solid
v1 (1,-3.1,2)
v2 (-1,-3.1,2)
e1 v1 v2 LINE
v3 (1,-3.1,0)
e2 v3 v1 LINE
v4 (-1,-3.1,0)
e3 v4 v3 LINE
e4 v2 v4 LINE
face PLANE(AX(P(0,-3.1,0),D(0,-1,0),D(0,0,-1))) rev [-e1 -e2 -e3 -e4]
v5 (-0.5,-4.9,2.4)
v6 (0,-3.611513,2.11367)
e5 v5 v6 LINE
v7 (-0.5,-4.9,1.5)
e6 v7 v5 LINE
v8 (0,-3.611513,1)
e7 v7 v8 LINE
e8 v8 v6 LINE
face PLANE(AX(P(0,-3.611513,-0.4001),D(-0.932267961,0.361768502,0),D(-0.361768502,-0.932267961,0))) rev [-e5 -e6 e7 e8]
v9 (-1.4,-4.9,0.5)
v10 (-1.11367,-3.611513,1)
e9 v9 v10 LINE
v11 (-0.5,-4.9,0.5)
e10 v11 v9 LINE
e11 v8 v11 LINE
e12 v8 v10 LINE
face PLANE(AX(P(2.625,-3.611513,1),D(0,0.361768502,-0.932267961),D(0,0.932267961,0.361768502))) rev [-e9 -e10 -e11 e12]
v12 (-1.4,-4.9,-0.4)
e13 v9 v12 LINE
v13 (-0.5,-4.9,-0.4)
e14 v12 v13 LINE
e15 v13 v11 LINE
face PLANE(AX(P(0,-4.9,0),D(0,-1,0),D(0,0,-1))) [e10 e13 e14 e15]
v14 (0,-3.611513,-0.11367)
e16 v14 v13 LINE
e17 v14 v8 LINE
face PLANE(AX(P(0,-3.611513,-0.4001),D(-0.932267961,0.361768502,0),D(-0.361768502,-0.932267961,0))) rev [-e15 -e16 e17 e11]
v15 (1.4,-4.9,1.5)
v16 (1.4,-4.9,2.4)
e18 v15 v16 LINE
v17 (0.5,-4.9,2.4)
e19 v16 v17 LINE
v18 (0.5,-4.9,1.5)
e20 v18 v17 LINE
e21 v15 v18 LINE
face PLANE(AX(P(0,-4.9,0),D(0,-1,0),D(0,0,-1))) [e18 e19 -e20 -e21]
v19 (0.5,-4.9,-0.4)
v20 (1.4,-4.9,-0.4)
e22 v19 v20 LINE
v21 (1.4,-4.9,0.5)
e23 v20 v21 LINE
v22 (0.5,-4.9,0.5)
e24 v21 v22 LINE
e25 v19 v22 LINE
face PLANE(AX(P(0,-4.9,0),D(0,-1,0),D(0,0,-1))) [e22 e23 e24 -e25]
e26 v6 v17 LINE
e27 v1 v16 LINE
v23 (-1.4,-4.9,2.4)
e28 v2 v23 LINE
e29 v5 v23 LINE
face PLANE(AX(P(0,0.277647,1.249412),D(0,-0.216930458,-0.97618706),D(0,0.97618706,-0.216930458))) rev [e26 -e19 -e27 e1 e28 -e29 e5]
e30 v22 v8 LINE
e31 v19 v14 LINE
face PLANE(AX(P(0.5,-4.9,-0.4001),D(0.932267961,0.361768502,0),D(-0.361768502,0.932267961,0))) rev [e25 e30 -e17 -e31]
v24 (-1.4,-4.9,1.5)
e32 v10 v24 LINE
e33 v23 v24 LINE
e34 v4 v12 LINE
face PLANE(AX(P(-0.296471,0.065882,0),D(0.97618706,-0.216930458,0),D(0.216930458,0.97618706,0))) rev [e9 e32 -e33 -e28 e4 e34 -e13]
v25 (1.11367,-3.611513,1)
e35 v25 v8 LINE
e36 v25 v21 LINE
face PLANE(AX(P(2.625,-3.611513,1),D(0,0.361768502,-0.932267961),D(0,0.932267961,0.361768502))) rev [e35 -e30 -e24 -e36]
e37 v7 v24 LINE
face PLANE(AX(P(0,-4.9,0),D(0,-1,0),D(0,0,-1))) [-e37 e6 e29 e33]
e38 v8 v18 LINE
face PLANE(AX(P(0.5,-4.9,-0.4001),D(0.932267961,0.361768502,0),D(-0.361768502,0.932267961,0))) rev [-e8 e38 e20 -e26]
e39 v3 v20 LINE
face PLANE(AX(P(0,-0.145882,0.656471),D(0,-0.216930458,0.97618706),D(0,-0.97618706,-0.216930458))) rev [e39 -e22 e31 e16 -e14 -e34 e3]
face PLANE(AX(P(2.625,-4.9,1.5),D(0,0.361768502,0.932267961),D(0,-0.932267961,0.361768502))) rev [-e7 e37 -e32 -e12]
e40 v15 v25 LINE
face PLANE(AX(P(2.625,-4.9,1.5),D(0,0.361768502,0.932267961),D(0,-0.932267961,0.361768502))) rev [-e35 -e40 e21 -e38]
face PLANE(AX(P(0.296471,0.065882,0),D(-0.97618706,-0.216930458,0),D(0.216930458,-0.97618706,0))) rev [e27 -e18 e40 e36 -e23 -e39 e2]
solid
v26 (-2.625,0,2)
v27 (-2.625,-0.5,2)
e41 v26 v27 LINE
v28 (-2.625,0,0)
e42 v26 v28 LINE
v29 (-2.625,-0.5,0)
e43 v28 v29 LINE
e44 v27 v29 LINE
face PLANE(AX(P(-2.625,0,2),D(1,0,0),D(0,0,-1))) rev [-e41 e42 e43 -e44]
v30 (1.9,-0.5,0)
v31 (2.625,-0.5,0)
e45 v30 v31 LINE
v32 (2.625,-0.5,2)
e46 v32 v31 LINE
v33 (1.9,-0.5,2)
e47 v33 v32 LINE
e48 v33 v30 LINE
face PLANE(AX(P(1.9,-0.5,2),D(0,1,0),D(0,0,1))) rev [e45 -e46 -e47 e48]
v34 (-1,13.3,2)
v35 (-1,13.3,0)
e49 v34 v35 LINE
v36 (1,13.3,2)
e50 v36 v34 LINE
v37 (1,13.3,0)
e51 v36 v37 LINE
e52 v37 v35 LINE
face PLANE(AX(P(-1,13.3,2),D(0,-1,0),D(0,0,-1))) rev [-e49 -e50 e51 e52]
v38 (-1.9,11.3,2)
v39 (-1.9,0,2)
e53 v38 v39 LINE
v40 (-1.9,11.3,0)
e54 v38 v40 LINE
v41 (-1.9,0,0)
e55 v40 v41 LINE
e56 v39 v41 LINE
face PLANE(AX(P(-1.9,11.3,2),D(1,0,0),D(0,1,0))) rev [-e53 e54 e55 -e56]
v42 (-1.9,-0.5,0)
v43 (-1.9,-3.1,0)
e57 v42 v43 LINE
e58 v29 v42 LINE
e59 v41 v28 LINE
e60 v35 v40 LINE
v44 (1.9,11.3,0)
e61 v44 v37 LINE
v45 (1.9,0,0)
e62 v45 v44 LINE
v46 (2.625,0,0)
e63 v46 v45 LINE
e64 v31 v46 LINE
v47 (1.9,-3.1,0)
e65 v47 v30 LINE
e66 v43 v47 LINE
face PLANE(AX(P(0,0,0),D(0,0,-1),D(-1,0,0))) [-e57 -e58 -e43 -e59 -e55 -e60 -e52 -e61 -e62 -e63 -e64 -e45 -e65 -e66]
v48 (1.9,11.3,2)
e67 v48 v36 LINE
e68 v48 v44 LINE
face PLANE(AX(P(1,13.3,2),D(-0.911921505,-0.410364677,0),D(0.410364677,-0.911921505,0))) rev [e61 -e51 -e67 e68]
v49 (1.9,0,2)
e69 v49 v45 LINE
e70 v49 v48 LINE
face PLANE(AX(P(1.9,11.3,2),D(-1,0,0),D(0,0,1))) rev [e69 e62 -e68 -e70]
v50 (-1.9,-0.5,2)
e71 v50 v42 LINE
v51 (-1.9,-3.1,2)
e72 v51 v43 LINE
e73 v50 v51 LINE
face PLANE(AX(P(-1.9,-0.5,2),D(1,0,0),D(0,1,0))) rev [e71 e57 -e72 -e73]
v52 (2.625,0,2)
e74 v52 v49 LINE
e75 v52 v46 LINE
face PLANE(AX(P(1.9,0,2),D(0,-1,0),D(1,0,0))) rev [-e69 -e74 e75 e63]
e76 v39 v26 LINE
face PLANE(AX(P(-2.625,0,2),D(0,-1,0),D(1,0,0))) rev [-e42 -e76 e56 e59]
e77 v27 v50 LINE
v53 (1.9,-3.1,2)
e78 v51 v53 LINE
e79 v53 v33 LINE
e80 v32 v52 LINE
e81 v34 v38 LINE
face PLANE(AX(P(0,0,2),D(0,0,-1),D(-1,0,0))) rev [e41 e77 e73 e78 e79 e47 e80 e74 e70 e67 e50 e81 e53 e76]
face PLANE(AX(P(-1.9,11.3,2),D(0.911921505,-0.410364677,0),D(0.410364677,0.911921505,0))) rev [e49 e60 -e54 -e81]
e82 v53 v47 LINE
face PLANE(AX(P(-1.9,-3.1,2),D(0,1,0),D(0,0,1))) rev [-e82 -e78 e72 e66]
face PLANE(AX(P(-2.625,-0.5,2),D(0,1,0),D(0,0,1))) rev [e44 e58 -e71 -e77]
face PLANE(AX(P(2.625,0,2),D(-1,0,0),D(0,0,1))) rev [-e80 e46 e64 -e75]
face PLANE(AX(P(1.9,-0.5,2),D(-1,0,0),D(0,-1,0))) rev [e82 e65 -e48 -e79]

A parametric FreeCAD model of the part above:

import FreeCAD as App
import Part
import Sketcher

V = App.Vector
Q = App.Units.Quantity


def add_polygon(sketch, points):
    """Adds a closed chain of lines whose ends are joined by coincident constraints."""
    first, n = sketch.GeometryCount, len(points)
    for a, b in zip(points, points[1:] + points[:1]):
        sketch.addGeometry(Part.LineSegment(App.Vector(*a, 0), App.Vector(*b, 0)), False)
    for i in range(n):
        sketch.addConstraint(Sketcher.Constraint("Coincident", first + i, 2, first + (i + 1) % n, 1))

doc = App.newDocument("Part")
body = doc.addObject("PartDesign::Body", "Body")

# Sketch on XY plane
sketch1 = body.newObject("Sketcher::SketchObject", "Sketch")
sketch1.AttachmentSupport = (doc.getObject("XY_Plane"), [""])
sketch1.MapMode = "FlatFace"
add_polygon(sketch1, [(2.6, 0), (1.9, 0), (1.9, 11.3), (1, 13.3), (-1, 13.3), (-1.9, 11.3), (-1.9, 0), (-2.6, 0), (-2.6, -0.5), (-1.9, -0.5), (-1.9, -3.1), (1.9, -3.1), (1.9, -0.5), (2.6, -0.5)])  # lines 0-13
sketch1.addConstraint([
    Sketcher.Constraint("Horizontal", 0),
    Sketcher.Constraint("Vertical", 1),
    Sketcher.Constraint("Horizontal", 3),
    Sketcher.Constraint("Vertical", 5),
    Sketcher.Constraint("Horizontal", 6),
    Sketcher.Constraint("Vertical", 7),
    Sketcher.Constraint("Horizontal", 8),
    Sketcher.Constraint("Vertical", 9),
    Sketcher.Constraint("Horizontal", 10),
    Sketcher.Constraint("Vertical", 11),
    Sketcher.Constraint("Horizontal", 12),
    Sketcher.Constraint("Vertical", 13),
    Sketcher.Constraint("Symmetric", 0, 2, 5, 2, -1, 1),
    Sketcher.Constraint("Symmetric", 8, 2, 11, 2, -2),
    Sketcher.Constraint("Symmetric", 6, 2, 13, 2, -2),
    Sketcher.Constraint("Horizontal", 1, 2, 4, 2),
    Sketcher.Constraint("Vertical", 5, 2, 8, 2),
    Sketcher.Constraint("Equal", 2, 4),
    Sketcher.Constraint("DistanceX", 3, 2, 3, 1, Q("2 mm")),
    Sketcher.Constraint("DistanceX", 10, 1, 10, 2, Q("3.8 mm")),
    Sketcher.Constraint("DistanceY", 1, 1, 1, 2, Q("11.3 mm")),
    Sketcher.Constraint("DistanceY", 7, 2, 7, 1, Q("0.5 mm")),
    Sketcher.Constraint("DistanceY", 9, 2, 9, 1, Q("2.6 mm")),
    Sketcher.Constraint("DistanceY", 1, 2, 2, 2, Q("2 mm")),
    Sketcher.Constraint("DistanceX", 0, 2, 0, 1, Q("0.725 mm")),
])
pad1 = body.newObject("PartDesign::Pad", "Pad")
pad1.Profile = sketch1
pad1.Length = 2
body2 = doc.addObject("PartDesign::Body", "Body001")

# Sketch on XZ plane
sketch2 = body2.newObject("Sketcher::SketchObject", "Sketch001")
sketch2.AttachmentSupport = (doc.getObject("XZ_Plane001"), [""])
sketch2.MapMode = "FlatFace"
sketch2.AttachmentOffset = App.Placement(V(0, 0, 3.1), App.Rotation())
add_polygon(sketch2, [(-1, 2), (-1, 0), (1, 0), (1, 2)])  # lines 0-3
sketch2.addConstraint([
    Sketcher.Constraint("Vertical", 0),
    Sketcher.Constraint("Horizontal", 1),
    Sketcher.Constraint("Vertical", 2),
    Sketcher.Constraint("Horizontal", 3),
    Sketcher.Constraint("Symmetric", 0, 2, 1, 2, -1, 1),
    Sketcher.Constraint("Equal", 3, 0),
    Sketcher.Constraint("DistanceX", 1, 1, 1, 2, Q("2 mm")),
])

# Sketch on XZ plane
sketch3 = body2.newObject("Sketcher::SketchObject", "Sketch002")
sketch3.AttachmentSupport = (doc.getObject("XZ_Plane001"), [""])
sketch3.MapMode = "FlatFace"
sketch3.AttachmentOffset = App.Placement(V(0, 0, 4.9), App.Rotation())
add_polygon(sketch3, [(1.4, -0.4), (1.4, 2.4), (-1.4, 2.4), (-1.4, -0.4)])  # lines 0-3
sketch3.addConstraint([
    Sketcher.Constraint("Vertical", 0),
    Sketcher.Constraint("Horizontal", 1),
    Sketcher.Constraint("Vertical", 2),
    Sketcher.Constraint("Horizontal", 3),
    Sketcher.Constraint("Equal", 3, 0),
    Sketcher.Constraint("DistanceX", 1, 2, 1, 1, Q("2.8 mm")),
    Sketcher.Constraint("DistanceX", -1, 1, 0, 2, Q("1.4 mm")),
    Sketcher.Constraint("DistanceY", -1, 1, 0, 2, Q("2.4 mm")),
])

additiveloft = body2.newObject("PartDesign::AdditiveLoft", "AdditiveLoft")
additiveloft.Profile = sketch2
additiveloft.Sections = [sketch3]

# Sketch on XY plane
sketch4 = body2.newObject("Sketcher::SketchObject", "Sketch003")
sketch4.AttachmentSupport = (doc.getObject("XY_Plane001"), [""])
sketch4.MapMode = "FlatFace"
sketch4.AttachmentOffset = App.Placement(V(0, 0, 1.8), App.Rotation())
add_polygon(sketch4, [(0, -3.6), (-0.5, -4.9), (0.5, -4.9)])  # lines 0-2
sketch4.addConstraint([
    Sketcher.Constraint("Horizontal", 1),
    Sketcher.Constraint("PointOnObject", 2, 2, -2),
    Sketcher.Constraint("Equal", 0, 2),
    Sketcher.Constraint("DistanceX", 1, 1, 1, 2, Q("1 mm")),
    Sketcher.Constraint("DistanceY", 0, 2, -1, 1, Q("4.9 mm")),
    Sketcher.Constraint("Distance", 0, Q("1.382099 mm")),
])
pocket1 = body2.newObject("PartDesign::Pocket", "Pocket")
pocket1.Profile = sketch4
pocket1.Type = "ThroughAll"
pocket1.Midplane = True

# Sketch on YZ plane
sketch5 = body2.newObject("Sketcher::SketchObject", "Sketch004")
sketch5.AttachmentSupport = (doc.getObject("YZ_Plane001"), [""])
sketch5.MapMode = "FlatFace"
sketch5.AttachmentOffset = App.Placement(V(0, 0, 1.8), App.Rotation())
add_polygon(sketch5, [(-3.6, 1), (-4.9, 0.5), (-4.9, 1.5)])  # lines 0-2
sketch5.addConstraint([
    Sketcher.Constraint("Vertical", 1),
    Sketcher.Constraint("Equal", 0, 2),
    Sketcher.Constraint("DistanceY", 1, 1, 1, 2, Q("1 mm")),
    Sketcher.Constraint("DistanceY", -1, 1, 2, 2, Q("1 mm")),
    Sketcher.Constraint("DistanceX", 0, 2, -1, 1, Q("4.9 mm")),
    Sketcher.Constraint("Distance", 0, Q("1.382099 mm")),
])
pocket2 = body2.newObject("PartDesign::Pocket", "Pocket001")
pocket2.Profile = sketch5
pocket2.Type = "ThroughAll"
pocket2.Midplane = True

doc.recompute()
